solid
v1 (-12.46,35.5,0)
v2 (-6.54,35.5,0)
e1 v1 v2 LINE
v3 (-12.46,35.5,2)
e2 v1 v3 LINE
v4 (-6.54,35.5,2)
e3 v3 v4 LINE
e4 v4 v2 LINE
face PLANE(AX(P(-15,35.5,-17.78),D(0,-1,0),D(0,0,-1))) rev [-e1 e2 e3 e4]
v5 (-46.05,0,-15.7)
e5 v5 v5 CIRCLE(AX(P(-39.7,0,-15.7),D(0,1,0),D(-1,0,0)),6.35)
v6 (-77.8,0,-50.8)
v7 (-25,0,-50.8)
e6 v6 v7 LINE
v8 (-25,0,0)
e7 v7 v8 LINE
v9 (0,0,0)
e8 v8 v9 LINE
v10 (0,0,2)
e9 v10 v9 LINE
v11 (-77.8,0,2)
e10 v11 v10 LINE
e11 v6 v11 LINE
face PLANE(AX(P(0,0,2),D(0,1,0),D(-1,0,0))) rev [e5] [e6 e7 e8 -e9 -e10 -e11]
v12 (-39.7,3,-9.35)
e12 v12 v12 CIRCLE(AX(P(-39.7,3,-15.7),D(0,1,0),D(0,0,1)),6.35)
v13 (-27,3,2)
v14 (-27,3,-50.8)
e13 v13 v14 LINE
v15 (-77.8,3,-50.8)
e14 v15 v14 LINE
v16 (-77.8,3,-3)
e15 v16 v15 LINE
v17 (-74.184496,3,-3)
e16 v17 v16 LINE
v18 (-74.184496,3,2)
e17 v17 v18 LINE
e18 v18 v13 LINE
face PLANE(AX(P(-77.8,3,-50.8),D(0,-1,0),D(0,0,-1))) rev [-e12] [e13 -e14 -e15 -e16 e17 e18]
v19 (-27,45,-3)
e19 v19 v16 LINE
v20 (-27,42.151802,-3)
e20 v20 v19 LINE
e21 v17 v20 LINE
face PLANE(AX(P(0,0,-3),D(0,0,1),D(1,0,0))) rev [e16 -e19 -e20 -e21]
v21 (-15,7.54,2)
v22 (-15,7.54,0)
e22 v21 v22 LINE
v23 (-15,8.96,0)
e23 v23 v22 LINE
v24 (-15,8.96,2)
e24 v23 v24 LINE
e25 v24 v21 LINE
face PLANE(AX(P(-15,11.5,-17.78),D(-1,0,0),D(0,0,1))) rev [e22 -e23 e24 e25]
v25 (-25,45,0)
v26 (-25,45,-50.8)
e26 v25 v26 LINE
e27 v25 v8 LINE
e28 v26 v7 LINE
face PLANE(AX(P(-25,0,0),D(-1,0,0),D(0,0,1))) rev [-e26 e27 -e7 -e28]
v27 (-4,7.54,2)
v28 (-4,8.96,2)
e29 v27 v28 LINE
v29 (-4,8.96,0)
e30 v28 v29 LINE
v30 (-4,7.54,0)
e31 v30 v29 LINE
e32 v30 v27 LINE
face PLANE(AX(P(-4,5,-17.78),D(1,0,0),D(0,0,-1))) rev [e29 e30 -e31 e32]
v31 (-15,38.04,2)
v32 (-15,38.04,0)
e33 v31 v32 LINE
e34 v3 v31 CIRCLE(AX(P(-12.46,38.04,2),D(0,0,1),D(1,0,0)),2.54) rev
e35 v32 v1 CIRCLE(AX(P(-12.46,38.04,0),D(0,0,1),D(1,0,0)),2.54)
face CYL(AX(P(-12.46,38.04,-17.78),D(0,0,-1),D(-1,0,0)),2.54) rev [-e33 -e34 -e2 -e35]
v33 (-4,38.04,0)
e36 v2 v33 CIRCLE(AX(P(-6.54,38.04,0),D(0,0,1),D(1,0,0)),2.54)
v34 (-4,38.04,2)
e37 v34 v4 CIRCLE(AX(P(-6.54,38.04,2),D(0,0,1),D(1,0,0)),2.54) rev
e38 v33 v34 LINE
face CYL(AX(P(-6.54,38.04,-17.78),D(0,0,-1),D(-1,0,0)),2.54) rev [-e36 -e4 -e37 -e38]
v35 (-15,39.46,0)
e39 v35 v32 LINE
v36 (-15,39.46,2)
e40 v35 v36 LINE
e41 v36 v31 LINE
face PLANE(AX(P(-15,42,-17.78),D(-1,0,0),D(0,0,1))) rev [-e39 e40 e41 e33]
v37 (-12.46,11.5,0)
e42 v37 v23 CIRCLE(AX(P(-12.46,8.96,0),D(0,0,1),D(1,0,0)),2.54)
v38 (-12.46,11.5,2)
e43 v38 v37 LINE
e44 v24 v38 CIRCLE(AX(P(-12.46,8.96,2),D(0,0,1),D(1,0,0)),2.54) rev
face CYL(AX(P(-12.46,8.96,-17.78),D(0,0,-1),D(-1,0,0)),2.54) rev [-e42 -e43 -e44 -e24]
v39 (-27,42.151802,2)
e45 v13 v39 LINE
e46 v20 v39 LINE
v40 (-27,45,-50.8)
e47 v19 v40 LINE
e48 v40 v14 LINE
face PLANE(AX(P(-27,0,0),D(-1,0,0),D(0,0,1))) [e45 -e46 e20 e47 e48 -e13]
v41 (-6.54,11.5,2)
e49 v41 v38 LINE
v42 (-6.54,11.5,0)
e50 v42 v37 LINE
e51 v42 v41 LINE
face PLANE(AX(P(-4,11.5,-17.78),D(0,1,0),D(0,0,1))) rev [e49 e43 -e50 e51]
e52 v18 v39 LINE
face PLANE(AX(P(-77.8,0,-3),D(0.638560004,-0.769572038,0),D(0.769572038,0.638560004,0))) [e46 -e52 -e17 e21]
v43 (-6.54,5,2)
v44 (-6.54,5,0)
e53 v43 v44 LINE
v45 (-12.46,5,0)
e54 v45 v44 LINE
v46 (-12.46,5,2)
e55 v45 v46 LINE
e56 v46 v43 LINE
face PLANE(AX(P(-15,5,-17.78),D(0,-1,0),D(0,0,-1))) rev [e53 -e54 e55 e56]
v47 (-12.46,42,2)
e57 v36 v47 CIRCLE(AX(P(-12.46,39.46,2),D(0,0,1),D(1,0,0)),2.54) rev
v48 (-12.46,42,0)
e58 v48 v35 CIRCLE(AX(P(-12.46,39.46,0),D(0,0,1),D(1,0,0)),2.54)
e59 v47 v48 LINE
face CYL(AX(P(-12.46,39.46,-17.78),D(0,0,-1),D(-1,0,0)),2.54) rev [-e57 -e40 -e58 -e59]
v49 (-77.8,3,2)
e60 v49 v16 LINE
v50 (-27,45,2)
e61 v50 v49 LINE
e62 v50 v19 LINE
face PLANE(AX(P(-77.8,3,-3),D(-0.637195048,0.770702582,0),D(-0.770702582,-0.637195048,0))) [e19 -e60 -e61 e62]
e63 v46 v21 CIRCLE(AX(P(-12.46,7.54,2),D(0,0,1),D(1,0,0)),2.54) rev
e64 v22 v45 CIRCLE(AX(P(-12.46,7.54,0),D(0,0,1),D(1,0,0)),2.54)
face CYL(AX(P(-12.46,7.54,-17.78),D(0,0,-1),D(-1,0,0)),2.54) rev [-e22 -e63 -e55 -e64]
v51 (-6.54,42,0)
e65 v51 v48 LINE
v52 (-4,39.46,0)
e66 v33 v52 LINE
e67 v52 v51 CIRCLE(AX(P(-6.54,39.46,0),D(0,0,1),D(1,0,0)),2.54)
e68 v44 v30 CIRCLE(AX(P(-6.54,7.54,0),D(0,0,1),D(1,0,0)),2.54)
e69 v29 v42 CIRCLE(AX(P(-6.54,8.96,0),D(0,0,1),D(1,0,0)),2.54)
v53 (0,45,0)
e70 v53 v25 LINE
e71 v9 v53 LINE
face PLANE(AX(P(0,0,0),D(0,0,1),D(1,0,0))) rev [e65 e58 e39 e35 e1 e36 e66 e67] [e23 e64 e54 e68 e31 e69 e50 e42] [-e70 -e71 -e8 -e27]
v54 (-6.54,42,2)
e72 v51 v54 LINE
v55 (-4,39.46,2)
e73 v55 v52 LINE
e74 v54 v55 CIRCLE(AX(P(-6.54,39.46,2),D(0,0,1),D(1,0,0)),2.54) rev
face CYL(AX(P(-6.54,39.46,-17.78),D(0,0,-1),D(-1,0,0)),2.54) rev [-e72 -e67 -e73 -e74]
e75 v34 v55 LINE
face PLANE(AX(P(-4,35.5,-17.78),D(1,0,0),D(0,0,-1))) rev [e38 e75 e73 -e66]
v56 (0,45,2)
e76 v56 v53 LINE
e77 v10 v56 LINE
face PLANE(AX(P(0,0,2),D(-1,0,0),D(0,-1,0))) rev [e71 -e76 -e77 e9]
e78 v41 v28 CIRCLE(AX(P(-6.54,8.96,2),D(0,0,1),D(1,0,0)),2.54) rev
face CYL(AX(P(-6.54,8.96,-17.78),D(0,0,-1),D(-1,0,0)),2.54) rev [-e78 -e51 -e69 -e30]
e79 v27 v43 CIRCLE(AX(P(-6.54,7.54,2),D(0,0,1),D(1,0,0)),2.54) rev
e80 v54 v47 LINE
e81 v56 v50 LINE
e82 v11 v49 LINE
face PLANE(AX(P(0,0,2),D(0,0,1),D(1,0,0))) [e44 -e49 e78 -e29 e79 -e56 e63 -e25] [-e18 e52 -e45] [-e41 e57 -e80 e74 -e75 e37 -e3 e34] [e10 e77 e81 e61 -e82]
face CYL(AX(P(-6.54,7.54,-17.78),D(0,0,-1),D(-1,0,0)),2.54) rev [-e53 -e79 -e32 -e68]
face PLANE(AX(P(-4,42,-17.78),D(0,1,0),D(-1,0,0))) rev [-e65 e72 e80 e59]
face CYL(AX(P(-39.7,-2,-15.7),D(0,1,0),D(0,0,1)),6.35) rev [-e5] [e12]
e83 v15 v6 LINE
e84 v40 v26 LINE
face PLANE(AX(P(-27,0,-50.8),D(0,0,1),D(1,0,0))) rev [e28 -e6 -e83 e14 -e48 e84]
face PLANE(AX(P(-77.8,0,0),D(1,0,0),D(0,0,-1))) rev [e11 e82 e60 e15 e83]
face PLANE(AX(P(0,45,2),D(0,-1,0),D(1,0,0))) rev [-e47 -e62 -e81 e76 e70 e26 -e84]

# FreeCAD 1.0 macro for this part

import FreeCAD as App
import Part
import Sketcher
Q = App.Units.Quantity


def edges_at(feature, points):
    """Names of the edges that pass closest to the given points."""
    edges = feature.Shape.Edges
    near = lambda p: min(range(len(edges)), key=lambda i: edges[i].distToShape(Part.Vertex(*p))[0])
    return sorted({f"Edge{near(p) + 1}" for p in points})


def add_polygon(sketch, points):
    """Adds a closed chain of lines whose ends are joined by coincident constraints."""
    first, n = sketch.GeometryCount, len(points)
    for a, b in zip(points, points[1:] + points[:1]):
        sketch.addGeometry(Part.LineSegment(App.Vector(*a, 0), App.Vector(*b, 0)), False)
    for i in range(n):
        sketch.addConstraint(Sketcher.Constraint("Coincident", first + i, 2, first + (i + 1) % n, 1))

doc = App.newDocument("Part")
body = doc.addObject("PartDesign::Body", "Body")

sketch1 = doc.addObject("Sketcher::SketchObject", "Sketch")
body.addObject(sketch1)
sketch1.AttachmentSupport = (doc.XY_Plane, [""])
sketch1.MapMode = "FlatFace"
add_polygon(sketch1, [(-25, 45), (-25, 0), (0, 0), (0, 45)])
sketch1.addConstraint(Sketcher.Constraint("Vertical", 0))
sketch1.addConstraint(Sketcher.Constraint("Horizontal", 1))
sketch1.addConstraint(Sketcher.Constraint("Vertical", 2))
sketch1.addConstraint(Sketcher.Constraint("Horizontal", 3))
sketch1.addConstraint(Sketcher.Constraint("Coincident", 1, 2, -1, 1))
sketch1.addConstraint(Sketcher.Constraint("DistanceX", 1, 1, 1, 2, Q("25 mm")))
sketch1.addConstraint(Sketcher.Constraint("DistanceY", 0, 2, 0, 1, Q("45 mm")))
pad1 = doc.addObject("PartDesign::Pad", "Pad")
body.addObject(pad1)
pad1.Profile = sketch1
pad1.Length = 2

sketch2 = doc.addObject("Sketcher::SketchObject", "Sketch001")
body.addObject(sketch2)
sketch2.AttachmentSupport = (doc.XY_Plane, [""])
sketch2.MapMode = "FlatFace"
sketch2.AttachmentOffset = App.Placement(App.Vector(0, 0, 2), App.Rotation())
add_polygon(sketch2, [(-15, 12), (-15, 5), (-4, 5), (-4, 12)])
add_polygon(sketch2, [(-15, 42), (-15, 36), (-4, 36), (-4, 42)])
sketch2.addConstraint(Sketcher.Constraint("Vertical", 0))
sketch2.addConstraint(Sketcher.Constraint("Horizontal", 1))
sketch2.addConstraint(Sketcher.Constraint("Vertical", 2))
sketch2.addConstraint(Sketcher.Constraint("Horizontal", 3))
sketch2.addConstraint(Sketcher.Constraint("Vertical", 4))
sketch2.addConstraint(Sketcher.Constraint("Horizontal", 5))
sketch2.addConstraint(Sketcher.Constraint("Vertical", 6))
sketch2.addConstraint(Sketcher.Constraint("Horizontal", 7))
sketch2.addConstraint(Sketcher.Constraint("Vertical", 3, 2, 4, 2))
sketch2.addConstraint(Sketcher.Constraint("Vertical", 2, 2, 5, 2))
sketch2.addConstraint(Sketcher.Constraint("Equal", 2, 4))
sketch2.addConstraint(Sketcher.Constraint("DistanceX", 1, 1, 1, 2, Q("11 mm")))
sketch2.addConstraint(Sketcher.Constraint("DistanceY", 0, 2, 0, 1, Q("6.5 mm")))
sketch2.addConstraint(Sketcher.Constraint("DistanceX", 0, 2, -1, 1, Q("15 mm")))
sketch2.addConstraint(Sketcher.Constraint("DistanceY", -1, 1, 0, 2, Q("5 mm")))
sketch2.addConstraint(Sketcher.Constraint("DistanceY", -1, 1, 6, 2, Q("42 mm")))
pocket1 = doc.addObject("PartDesign::Pocket", "Pocket")
body.addObject(pocket1)
pocket1.Profile = sketch2
pocket1.Length = 19.78
doc.recompute()

fillet = doc.addObject("PartDesign::Fillet", "Fillet")
body.addObject(fillet)
fillet.Base = (pocket1, edges_at(pocket1, [
    (-15, 11.5, 1),
    (-4, 11.5, 1),
    (-4, 5, 1),
    (-15, 5, 1),
    (-15, 42, 1),
    (-4, 42, 1),
    (-4, 35.5, 1),
    (-15, 35.5, 1),
]))
fillet.Radius = 2.54

sketch3 = doc.addObject("Sketcher::SketchObject", "Sketch002")
body.addObject(sketch3)
sketch3.AttachmentSupport = (doc.YZ_Plane, [""])
sketch3.MapMode = "FlatFace"
sketch3.AttachmentOffset = App.Placement(App.Vector(0, 0, -25), App.Rotation())
add_polygon(sketch3, [(0, -51), (0, 2), (45, 2), (45, -51)])
sketch3.addConstraint(Sketcher.Constraint("Vertical", 0))
sketch3.addConstraint(Sketcher.Constraint("Horizontal", 1))
sketch3.addConstraint(Sketcher.Constraint("Vertical", 2))
sketch3.addConstraint(Sketcher.Constraint("Horizontal", 3))
sketch3.addConstraint(Sketcher.Constraint("PointOnObject", 0, 2, -2))
sketch3.addConstraint(Sketcher.Constraint("DistanceX", 1, 1, 1, 2, Q("45 mm")))
sketch3.addConstraint(Sketcher.Constraint("DistanceY", 0, 1, 0, 2, Q("52.8 mm")))
sketch3.addConstraint(Sketcher.Constraint("DistanceY", -1, 1, 0, 2, Q("2 mm")))
pad2 = doc.addObject("PartDesign::Pad", "Pad001")
body.addObject(pad2)
pad2.Profile = sketch3
pad2.Length = 2
pad2.Reversed = True

sketch4 = doc.addObject("Sketcher::SketchObject", "Sketch003")
body.addObject(sketch4)
sketch4.AttachmentSupport = (doc.YZ_Plane, [""])
sketch4.MapMode = "FlatFace"
sketch4.AttachmentOffset = App.Placement(App.Vector(0, 0, -27), App.Rotation())
add_polygon(sketch4, [(3, -50.8), (0, -50.8), (0, 2), (3, 2)])
sketch4.addConstraint(Sketcher.Constraint("Horizontal", 0))
sketch4.addConstraint(Sketcher.Constraint("Vertical", 1))
sketch4.addConstraint(Sketcher.Constraint("Horizontal", 2))
sketch4.addConstraint(Sketcher.Constraint("Vertical", 3))
sketch4.addConstraint(Sketcher.Constraint("PointOnObject", 0, 2, -2))
sketch4.addConstraint(Sketcher.Constraint("DistanceX", 0, 2, 0, 1, Q("3 mm")))
sketch4.addConstraint(Sketcher.Constraint("DistanceY", 1, 1, 1, 2, Q("52.8 mm")))
sketch4.addConstraint(Sketcher.Constraint("DistanceY", -1, 1, 1, 2, Q("2 mm")))
pad3 = doc.addObject("PartDesign::Pad", "Pad002")
body.addObject(pad3)
pad3.Profile = sketch4
pad3.Length = 50.8
pad3.Reversed = True

sketch5 = doc.addObject("Sketcher::SketchObject", "Sketch004")
body.addObject(sketch5)
sketch5.AttachmentSupport = (doc.XY_Plane, [""])
sketch5.MapMode = "FlatFace"
sketch5.AttachmentOffset = App.Placement(App.Vector(0, 0, 2), App.Rotation())
add_polygon(sketch5, [(-27, 45), (-77.8, 3), (-77.8, 0), (-27, 42.2)])
sketch5.addConstraint(Sketcher.Constraint("Vertical", 1))
sketch5.addConstraint(Sketcher.Constraint("Vertical", 3))
sketch5.addConstraint(Sketcher.Constraint("PointOnObject", 1, 2, -1))
sketch5.addConstraint(Sketcher.Constraint("DistanceY", 1, 2, 1, 1, Q("3 mm")))
sketch5.addConstraint(Sketcher.Constraint("DistanceX", 2, 2, -1, 1, Q("27 mm")))
sketch5.addConstraint(Sketcher.Constraint("DistanceY", -1, 1, 3, 2, Q("45 mm")))
sketch5.addConstraint(Sketcher.Constraint("DistanceX", 0, 2, -1, 1, Q("77.8 mm")))
sketch5.addConstraint(Sketcher.Constraint("DistanceY", 3, 1, 3, 2, Q("2.848198 mm")))
pad4 = doc.addObject("PartDesign::Pad", "Pad003")
body.addObject(pad4)
pad4.Profile = sketch5
pad4.Length = 5
pad4.Reversed = True

sketch6 = doc.addObject("Sketcher::SketchObject", "Sketch005")
body.addObject(sketch6)
sketch6.AttachmentSupport = (doc.XZ_Plane, [""])
sketch6.MapMode = "FlatFace"
sketch6.AttachmentOffset = App.Placement(App.Vector(0, 0, -3), App.Rotation())
sketch6.addGeometry(Part.Circle(App.Vector(-40, -16, 0), App.Vector(0, 0, 1), 6), False)
sketch6.addConstraint(Sketcher.Constraint("Diameter", 0, Q("12.7 mm")))
sketch6.addConstraint(Sketcher.Constraint("DistanceX", 0, 3, -1, 1, Q("39.7 mm")))
sketch6.addConstraint(Sketcher.Constraint("DistanceY", 0, 3, -1, 1, Q("15.7 mm")))
pocket2 = doc.addObject("PartDesign::Pocket", "Pocket001")
body.addObject(pocket2)
pocket2.Profile = sketch6
pocket2.Length = 5
pocket2.Reversed = True

doc.recompute()
